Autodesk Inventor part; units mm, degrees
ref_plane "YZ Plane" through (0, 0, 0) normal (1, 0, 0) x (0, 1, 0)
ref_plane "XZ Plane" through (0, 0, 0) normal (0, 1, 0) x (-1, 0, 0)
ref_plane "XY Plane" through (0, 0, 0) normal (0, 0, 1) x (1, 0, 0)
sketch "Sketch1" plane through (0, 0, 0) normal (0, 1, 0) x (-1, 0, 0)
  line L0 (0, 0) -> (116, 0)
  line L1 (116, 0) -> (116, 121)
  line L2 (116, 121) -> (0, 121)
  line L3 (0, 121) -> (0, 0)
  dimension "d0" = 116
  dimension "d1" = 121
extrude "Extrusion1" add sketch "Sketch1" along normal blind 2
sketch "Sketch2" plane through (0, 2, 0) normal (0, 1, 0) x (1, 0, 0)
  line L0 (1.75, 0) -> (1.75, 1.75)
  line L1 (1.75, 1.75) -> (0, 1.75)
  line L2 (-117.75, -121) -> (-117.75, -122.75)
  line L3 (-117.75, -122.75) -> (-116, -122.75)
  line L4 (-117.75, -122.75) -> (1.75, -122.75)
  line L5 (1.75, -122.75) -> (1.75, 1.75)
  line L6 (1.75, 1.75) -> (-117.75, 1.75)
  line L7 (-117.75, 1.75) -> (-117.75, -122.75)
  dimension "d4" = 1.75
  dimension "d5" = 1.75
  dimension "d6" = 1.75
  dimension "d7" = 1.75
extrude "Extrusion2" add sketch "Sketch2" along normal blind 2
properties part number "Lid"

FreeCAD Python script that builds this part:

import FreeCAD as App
import Part
import Sketcher

V = App.Vector

doc = App.newDocument("Part")
params = doc.addObject("Spreadsheet::Sheet", "Params")
for row, (alias, value) in enumerate([
    ("sketch1_width", "116 mm"),
    ("sketch1_height", "121 mm"),
    ("pad1_length", "2 mm"),
    ("sketch2_width", "119.5 mm"),
    ("sketch2_height", "124.5 mm"),
    ("pad2_length", "2 mm"),
], start=1):
    params.set(f"A{row}", alias)
    params.set(f"B{row}", "=" + value)
    params.setAlias(f"B{row}", alias)

body = doc.addObject("PartDesign::Body", "Body")

sketch1 = doc.addObject("Sketcher::SketchObject", "Sketch")
body.addObject(sketch1)
sketch1.AttachmentSupport = (doc.XZ_Plane, [""])
sketch1.MapMode = "FlatFace"
sketch1.addGeometry([
    Part.LineSegment(V(0, 121, 0), V(0, 0, 0)),
    Part.LineSegment(V(0, 0, 0), V(-116, 0, 0)),
    Part.LineSegment(V(-116, 0, 0), V(-116, 121, 0)),
    Part.LineSegment(V(-116, 121, 0), V(0, 121, 0)),
], False)
sketch1.addConstraint([
    Sketcher.Constraint("Coincident", 0, 2, 1, 1),
    Sketcher.Constraint("Coincident", 1, 2, 2, 1),
    Sketcher.Constraint("Coincident", 2, 2, 3, 1),
    Sketcher.Constraint("Coincident", 3, 2, 0, 1),
    Sketcher.Constraint("Vertical", 0),
    Sketcher.Constraint("Horizontal", 1),
    Sketcher.Constraint("Vertical", 2),
    Sketcher.Constraint("Horizontal", 3),
    Sketcher.Constraint("Coincident", 0, 2, -1, 1),
    Sketcher.Constraint("DistanceX", 1, 2, 1, 1, 116.0),
    Sketcher.Constraint("DistanceY", 0, 2, 0, 1, 121.0),
])
sketch1.setExpression("Constraints[9]", "Params.sketch1_width")
sketch1.setExpression("Constraints[10]", "Params.sketch1_height")
pad1 = doc.addObject("PartDesign::Pad", "Pad")
body.addObject(pad1)
pad1.Profile = sketch1
pad1.setExpression("Length", "Params.pad1_length")
pad1.Reversed = True

sketch2 = doc.addObject("Sketcher::SketchObject", "Sketch001")
body.addObject(sketch2)
sketch2.AttachmentSupport = (doc.XZ_Plane, [""])
sketch2.MapMode = "FlatFace"
sketch2.AttachmentOffset = App.Placement(V(0, 0, -2), App.Rotation())
sketch2.addGeometry([
    Part.LineSegment(V(1.75, 122.75, 0), V(1.75, -1.75, 0)),
    Part.LineSegment(V(1.75, -1.75, 0), V(-117.75, -1.75, 0)),
    Part.LineSegment(V(-117.75, -1.75, 0), V(-117.75, 122.75, 0)),
    Part.LineSegment(V(-117.75, 122.75, 0), V(1.75, 122.75, 0)),
], False)
sketch2.addConstraint([
    Sketcher.Constraint("Coincident", 0, 2, 1, 1),
    Sketcher.Constraint("Coincident", 1, 2, 2, 1),
    Sketcher.Constraint("Coincident", 2, 2, 3, 1),
    Sketcher.Constraint("Coincident", 3, 2, 0, 1),
    Sketcher.Constraint("Vertical", 0),
    Sketcher.Constraint("Horizontal", 1),
    Sketcher.Constraint("Vertical", 2),
    Sketcher.Constraint("Horizontal", 3),
    Sketcher.Constraint("DistanceX", -1, 1, 0, 2, 1.75),
    Sketcher.Constraint("DistanceY", 0, 2, -1, 1, 1.75),
    Sketcher.Constraint("DistanceX", 1, 2, 1, 1, 119.5),
    Sketcher.Constraint("DistanceY", 0, 2, 0, 1, 124.5),
])
sketch2.setExpression("Constraints[10]", "Params.sketch2_width")
sketch2.setExpression("Constraints[11]", "Params.sketch2_height")
pad2 = doc.addObject("PartDesign::Pad", "Pad001")
body.addObject(pad2)
pad2.Profile = sketch2
pad2.setExpression("Length", "Params.pad2_length")
pad2.Reversed = True

doc.recompute()
